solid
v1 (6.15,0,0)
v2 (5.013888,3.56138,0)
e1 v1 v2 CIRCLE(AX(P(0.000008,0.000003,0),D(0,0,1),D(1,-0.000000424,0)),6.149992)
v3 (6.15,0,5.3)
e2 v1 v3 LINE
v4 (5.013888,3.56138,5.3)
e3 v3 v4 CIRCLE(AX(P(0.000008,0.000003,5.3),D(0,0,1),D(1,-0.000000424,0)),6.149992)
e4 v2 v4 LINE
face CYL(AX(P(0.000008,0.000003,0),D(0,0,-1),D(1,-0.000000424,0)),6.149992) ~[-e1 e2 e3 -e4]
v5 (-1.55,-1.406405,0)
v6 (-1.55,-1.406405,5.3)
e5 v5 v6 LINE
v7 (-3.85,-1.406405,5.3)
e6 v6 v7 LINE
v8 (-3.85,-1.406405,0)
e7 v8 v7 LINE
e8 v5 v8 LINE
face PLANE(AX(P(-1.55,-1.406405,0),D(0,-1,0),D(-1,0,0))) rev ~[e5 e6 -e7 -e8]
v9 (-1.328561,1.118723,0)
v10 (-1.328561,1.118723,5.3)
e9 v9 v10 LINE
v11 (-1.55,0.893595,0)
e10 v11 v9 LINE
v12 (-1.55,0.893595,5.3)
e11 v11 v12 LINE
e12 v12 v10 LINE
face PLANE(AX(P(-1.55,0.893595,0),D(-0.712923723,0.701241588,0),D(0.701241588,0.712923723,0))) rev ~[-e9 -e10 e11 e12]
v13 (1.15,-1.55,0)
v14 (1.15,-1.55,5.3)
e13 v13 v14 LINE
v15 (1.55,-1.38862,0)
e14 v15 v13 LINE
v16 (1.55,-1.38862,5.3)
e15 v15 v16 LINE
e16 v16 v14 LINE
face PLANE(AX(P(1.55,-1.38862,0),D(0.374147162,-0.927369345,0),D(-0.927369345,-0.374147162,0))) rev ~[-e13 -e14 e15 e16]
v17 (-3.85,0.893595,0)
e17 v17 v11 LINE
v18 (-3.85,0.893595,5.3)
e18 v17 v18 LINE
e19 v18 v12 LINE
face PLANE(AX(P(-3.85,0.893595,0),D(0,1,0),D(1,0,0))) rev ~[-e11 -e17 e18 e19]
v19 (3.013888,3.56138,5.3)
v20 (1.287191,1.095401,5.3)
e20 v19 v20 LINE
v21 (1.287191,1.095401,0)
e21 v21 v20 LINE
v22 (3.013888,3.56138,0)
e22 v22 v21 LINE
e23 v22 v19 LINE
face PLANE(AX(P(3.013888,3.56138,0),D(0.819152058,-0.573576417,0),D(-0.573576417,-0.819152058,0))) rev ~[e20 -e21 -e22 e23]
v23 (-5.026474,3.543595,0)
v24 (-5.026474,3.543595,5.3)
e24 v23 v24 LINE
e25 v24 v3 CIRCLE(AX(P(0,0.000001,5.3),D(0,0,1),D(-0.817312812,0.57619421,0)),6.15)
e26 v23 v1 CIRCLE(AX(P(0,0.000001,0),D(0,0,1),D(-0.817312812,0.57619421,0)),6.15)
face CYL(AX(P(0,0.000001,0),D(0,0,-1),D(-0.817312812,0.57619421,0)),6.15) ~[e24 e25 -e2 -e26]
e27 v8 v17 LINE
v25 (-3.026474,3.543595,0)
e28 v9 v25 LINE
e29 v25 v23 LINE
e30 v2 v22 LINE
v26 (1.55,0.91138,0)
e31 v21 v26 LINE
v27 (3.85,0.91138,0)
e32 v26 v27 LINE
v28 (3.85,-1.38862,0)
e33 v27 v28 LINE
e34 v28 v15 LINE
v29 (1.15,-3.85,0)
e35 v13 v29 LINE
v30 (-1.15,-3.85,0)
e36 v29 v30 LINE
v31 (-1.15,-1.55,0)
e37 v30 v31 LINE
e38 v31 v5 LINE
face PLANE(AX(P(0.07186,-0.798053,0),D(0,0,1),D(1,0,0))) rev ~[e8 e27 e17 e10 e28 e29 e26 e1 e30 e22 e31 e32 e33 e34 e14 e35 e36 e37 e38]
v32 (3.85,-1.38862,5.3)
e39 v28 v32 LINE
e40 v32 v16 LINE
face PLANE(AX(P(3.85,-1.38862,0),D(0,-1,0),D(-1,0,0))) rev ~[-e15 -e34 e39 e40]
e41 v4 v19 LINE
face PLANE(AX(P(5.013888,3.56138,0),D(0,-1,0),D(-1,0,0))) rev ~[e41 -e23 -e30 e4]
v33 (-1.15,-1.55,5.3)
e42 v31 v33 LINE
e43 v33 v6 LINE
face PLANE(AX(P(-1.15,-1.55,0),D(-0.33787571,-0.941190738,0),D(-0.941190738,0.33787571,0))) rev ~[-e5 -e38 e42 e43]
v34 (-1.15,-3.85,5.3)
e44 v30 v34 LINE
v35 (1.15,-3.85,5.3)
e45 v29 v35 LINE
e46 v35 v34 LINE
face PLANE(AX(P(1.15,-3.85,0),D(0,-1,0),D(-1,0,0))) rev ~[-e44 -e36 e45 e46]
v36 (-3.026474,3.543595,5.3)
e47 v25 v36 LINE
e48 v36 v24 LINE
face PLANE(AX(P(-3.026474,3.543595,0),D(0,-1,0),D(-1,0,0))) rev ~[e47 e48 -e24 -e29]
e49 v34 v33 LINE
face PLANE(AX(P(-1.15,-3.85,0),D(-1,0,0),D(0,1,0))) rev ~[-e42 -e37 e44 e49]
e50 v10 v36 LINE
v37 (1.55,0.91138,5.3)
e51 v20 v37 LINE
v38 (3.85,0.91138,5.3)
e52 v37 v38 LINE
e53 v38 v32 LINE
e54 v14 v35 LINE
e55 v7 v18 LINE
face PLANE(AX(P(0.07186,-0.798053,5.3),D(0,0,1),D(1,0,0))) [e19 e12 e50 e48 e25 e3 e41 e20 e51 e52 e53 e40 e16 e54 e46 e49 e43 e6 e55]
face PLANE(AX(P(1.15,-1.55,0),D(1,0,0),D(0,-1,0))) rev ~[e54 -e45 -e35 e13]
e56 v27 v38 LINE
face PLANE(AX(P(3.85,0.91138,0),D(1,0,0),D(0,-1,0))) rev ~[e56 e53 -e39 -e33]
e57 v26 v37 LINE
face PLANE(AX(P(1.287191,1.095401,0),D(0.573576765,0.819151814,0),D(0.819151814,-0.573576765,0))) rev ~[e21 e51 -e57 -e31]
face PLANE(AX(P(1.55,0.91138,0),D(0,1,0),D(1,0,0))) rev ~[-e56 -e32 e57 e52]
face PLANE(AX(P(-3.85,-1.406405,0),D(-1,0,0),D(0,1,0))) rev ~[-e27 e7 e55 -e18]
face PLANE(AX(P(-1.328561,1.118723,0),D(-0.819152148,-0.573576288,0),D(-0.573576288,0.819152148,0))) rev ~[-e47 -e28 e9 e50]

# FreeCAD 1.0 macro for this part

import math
import FreeCAD as App
import Part
import Sketcher
Q = App.Units.Quantity

doc = App.newDocument("Part")
params = doc.addObject("Spreadsheet::Sheet", "Params")
for row, (alias, value) in enumerate([
    ("sketch1_width", "2 mm"),
    ("sketch1_radius", "6.15 mm"),
    ("sketch1_width2", "2.3 mm"),
    ("pad1_length", "5.3 mm"),
], start=1):
    params.set(f"A{row}", alias)
    params.set(f"B{row}", "=" + value)
    params.setAlias(f"B{row}", alias)

body = doc.addObject("PartDesign::Body", "Body")

sketch1 = doc.addObject("Sketcher::SketchObject", "Sketch")
body.addObject(sketch1)
sketch1.AttachmentSupport = (doc.XY_Plane, [""])
sketch1.MapMode = "FlatFace"
sketch1.addGeometry(Part.ArcOfCircle(Part.Circle(App.Vector(0, 0.000001, 0), App.Vector(0, 0, 1), 6.15), math.radians(144.816694), math.radians(359.999995)), False)
sketch1.addGeometry(Part.ArcOfCircle(Part.Circle(App.Vector(0.000008, 0.000003, 0), App.Vector(0, 0, 1), 6.149992), math.radians(-0.000024), math.radians(35.386318)), False)
sketch1.addGeometry(Part.LineSegment(App.Vector(5.013888, 3.56138, 0), App.Vector(3.013888, 3.56138, 0)), False)
sketch1.addGeometry(Part.LineSegment(App.Vector(3.013888, 3.56138, 0), App.Vector(1.287191, 1.095401, 0)), False)
sketch1.addGeometry(Part.LineSegment(App.Vector(1.287191, 1.095401, 0), App.Vector(1.55, 0.91138, 0)), False)
sketch1.addGeometry(Part.LineSegment(App.Vector(1.55, 0.91138, 0), App.Vector(3.85, 0.91138, 0)), False)
sketch1.addGeometry(Part.LineSegment(App.Vector(3.85, 0.91138, 0), App.Vector(3.85, -1.38862, 0)), False)
sketch1.addGeometry(Part.LineSegment(App.Vector(3.85, -1.38862, 0), App.Vector(1.55, -1.38862, 0)), False)
sketch1.addGeometry(Part.LineSegment(App.Vector(1.55, -1.38862, 0), App.Vector(1.15, -1.55, 0)), False)
sketch1.addGeometry(Part.LineSegment(App.Vector(1.15, -1.55, 0), App.Vector(1.15, -3.85, 0)), False)
sketch1.addGeometry(Part.LineSegment(App.Vector(1.15, -3.85, 0), App.Vector(-1.15, -3.85, 0)), False)
sketch1.addGeometry(Part.LineSegment(App.Vector(-1.15, -3.85, 0), App.Vector(-1.15, -1.55, 0)), False)
sketch1.addGeometry(Part.LineSegment(App.Vector(-1.15, -1.55, 0), App.Vector(-1.55, -1.406405, 0)), False)
sketch1.addGeometry(Part.LineSegment(App.Vector(-1.55, -1.406405, 0), App.Vector(-3.85, -1.406405, 0)), False)
sketch1.addGeometry(Part.LineSegment(App.Vector(-3.85, -1.406405, 0), App.Vector(-3.85, 0.893595, 0)), False)
sketch1.addGeometry(Part.LineSegment(App.Vector(-3.85, 0.893595, 0), App.Vector(-1.55, 0.893595, 0)), False)
sketch1.addGeometry(Part.LineSegment(App.Vector(-1.55, 0.893595, 0), App.Vector(-1.328561, 1.118723, 0)), False)
sketch1.addGeometry(Part.LineSegment(App.Vector(-1.328561, 1.118723, 0), App.Vector(-3.026474, 3.543595, 0)), False)
sketch1.addGeometry(Part.LineSegment(App.Vector(-3.026474, 3.543595, 0), App.Vector(-5.026474, 3.543595, 0)), False)
sketch1.addConstraint(Sketcher.Constraint("Tangent", 0, 2, 1, 1))
sketch1.addConstraint(Sketcher.Constraint("Coincident", 1, 2, 2, 1))
sketch1.addConstraint(Sketcher.Constraint("Coincident", 2, 2, 3, 1))
sketch1.addConstraint(Sketcher.Constraint("Coincident", 3, 2, 4, 1))
sketch1.addConstraint(Sketcher.Constraint("Coincident", 4, 2, 5, 1))
sketch1.addConstraint(Sketcher.Constraint("Coincident", 5, 2, 6, 1))
sketch1.addConstraint(Sketcher.Constraint("Coincident", 6, 2, 7, 1))
sketch1.addConstraint(Sketcher.Constraint("Coincident", 7, 2, 8, 1))
sketch1.addConstraint(Sketcher.Constraint("Coincident", 8, 2, 9, 1))
sketch1.addConstraint(Sketcher.Constraint("Coincident", 9, 2, 10, 1))
sketch1.addConstraint(Sketcher.Constraint("Coincident", 10, 2, 11, 1))
sketch1.addConstraint(Sketcher.Constraint("Coincident", 11, 2, 12, 1))
sketch1.addConstraint(Sketcher.Constraint("Coincident", 12, 2, 13, 1))
sketch1.addConstraint(Sketcher.Constraint("Coincident", 13, 2, 14, 1))
sketch1.addConstraint(Sketcher.Constraint("Coincident", 14, 2, 15, 1))
sketch1.addConstraint(Sketcher.Constraint("Coincident", 15, 2, 16, 1))
sketch1.addConstraint(Sketcher.Constraint("Coincident", 16, 2, 17, 1))
sketch1.addConstraint(Sketcher.Constraint("Coincident", 17, 2, 18, 1))
sketch1.addConstraint(Sketcher.Constraint("Coincident", 18, 2, 0, 1))
sketch1.addConstraint(Sketcher.Constraint("Horizontal", 2))
sketch1.addConstraint(Sketcher.Constraint("Horizontal", 5))
sketch1.addConstraint(Sketcher.Constraint("Vertical", 6))
sketch1.addConstraint(Sketcher.Constraint("Horizontal", 7))
sketch1.addConstraint(Sketcher.Constraint("Vertical", 9))
sketch1.addConstraint(Sketcher.Constraint("Horizontal", 10))
sketch1.addConstraint(Sketcher.Constraint("Vertical", 11))
sketch1.addConstraint(Sketcher.Constraint("Horizontal", 13))
sketch1.addConstraint(Sketcher.Constraint("Vertical", 14))
sketch1.addConstraint(Sketcher.Constraint("Horizontal", 15))
sketch1.addConstraint(Sketcher.Constraint("Horizontal", 18))
sketch1.addConstraint(Sketcher.Constraint("Coincident", 0, 3, -1, 1))
sketch1.addConstraint(Sketcher.Constraint("Symmetric", 8, 2, 11, 2, -2))
sketch1.addConstraint(Sketcher.Constraint("PointOnObject", 0, 2, -1))
sketch1.addConstraint(Sketcher.Constraint("Perpendicular", 3, 4))
sketch1.addConstraint(Sketcher.Constraint("Vertical", 4, 2, 7, 2))
sketch1.addConstraint(Sketcher.Constraint("Vertical", 12, 2, 15, 2))
sketch1.addConstraint(Sketcher.Constraint("Equal", 7, 10))
sketch1.addConstraint(Sketcher.Constraint("Equal", 10, 13))
sketch1.addConstraint(Sketcher.Constraint("Equal", 2, 18))
sketch1.addConstraint(Sketcher.Constraint("Equal", 15, 6))
sketch1.addConstraint(Sketcher.Constraint("Equal", 6, 9))
sketch1.addConstraint(Sketcher.Constraint("Equal", 11, 14))
sketch1.addConstraint(Sketcher.Constraint("DistanceX", 2, 2, 2, 1, 2.0))
sketch1.addConstraint(Sketcher.Constraint("Angle", 3, Q("-124.999999 deg")))
sketch1.addConstraint(Sketcher.Constraint("Angle", 17, Q("124.99999 deg")))
sketch1.addConstraint(Sketcher.Constraint("Radius", 0, 6.15))
sketch1.addConstraint(Sketcher.Constraint("DistanceX", 5, 1, 5, 2, 2.3))
sketch1.addConstraint(Sketcher.Constraint("DistanceX", 5, 2, 0, 2, 2.3))
sketch1.addConstraint(Sketcher.Constraint("DistanceX", 12, 2, 11, 2, 0.4))
sketch1.addConstraint(Sketcher.Constraint("DistanceY", 8, 2, -1, 1, 1.55))
sketch1.addConstraint(Sketcher.Constraint("Radius", 1, 6.149992))
sketch1.addConstraint(Sketcher.Constraint("DistanceY", 4, 2, 2, 2, 2.65))
sketch1.addConstraint(Sketcher.Constraint("DistanceY", 14, 2, 17, 2, 2.65))
sketch1.addConstraint(Sketcher.Constraint("DistanceY", -1, 1, 3, 2, 1.095401))
sketch1.addConstraint(Sketcher.Constraint("Distance", 16, 0.315781))
sketch1.addConstraint(Sketcher.Constraint("Distance", 17, 2.960222))
sketch1.setExpression("Constraints[42]", "Params.sketch1_width")
sketch1.setExpression("Constraints[45]", "Params.sketch1_radius")
sketch1.setExpression("Constraints[46]", "Params.sketch1_width2")
pad1 = doc.addObject("PartDesign::Pad", "Pad")
body.addObject(pad1)
pad1.Profile = sketch1
pad1.setExpression("Length", "Params.pad1_length")

doc.recompute()
